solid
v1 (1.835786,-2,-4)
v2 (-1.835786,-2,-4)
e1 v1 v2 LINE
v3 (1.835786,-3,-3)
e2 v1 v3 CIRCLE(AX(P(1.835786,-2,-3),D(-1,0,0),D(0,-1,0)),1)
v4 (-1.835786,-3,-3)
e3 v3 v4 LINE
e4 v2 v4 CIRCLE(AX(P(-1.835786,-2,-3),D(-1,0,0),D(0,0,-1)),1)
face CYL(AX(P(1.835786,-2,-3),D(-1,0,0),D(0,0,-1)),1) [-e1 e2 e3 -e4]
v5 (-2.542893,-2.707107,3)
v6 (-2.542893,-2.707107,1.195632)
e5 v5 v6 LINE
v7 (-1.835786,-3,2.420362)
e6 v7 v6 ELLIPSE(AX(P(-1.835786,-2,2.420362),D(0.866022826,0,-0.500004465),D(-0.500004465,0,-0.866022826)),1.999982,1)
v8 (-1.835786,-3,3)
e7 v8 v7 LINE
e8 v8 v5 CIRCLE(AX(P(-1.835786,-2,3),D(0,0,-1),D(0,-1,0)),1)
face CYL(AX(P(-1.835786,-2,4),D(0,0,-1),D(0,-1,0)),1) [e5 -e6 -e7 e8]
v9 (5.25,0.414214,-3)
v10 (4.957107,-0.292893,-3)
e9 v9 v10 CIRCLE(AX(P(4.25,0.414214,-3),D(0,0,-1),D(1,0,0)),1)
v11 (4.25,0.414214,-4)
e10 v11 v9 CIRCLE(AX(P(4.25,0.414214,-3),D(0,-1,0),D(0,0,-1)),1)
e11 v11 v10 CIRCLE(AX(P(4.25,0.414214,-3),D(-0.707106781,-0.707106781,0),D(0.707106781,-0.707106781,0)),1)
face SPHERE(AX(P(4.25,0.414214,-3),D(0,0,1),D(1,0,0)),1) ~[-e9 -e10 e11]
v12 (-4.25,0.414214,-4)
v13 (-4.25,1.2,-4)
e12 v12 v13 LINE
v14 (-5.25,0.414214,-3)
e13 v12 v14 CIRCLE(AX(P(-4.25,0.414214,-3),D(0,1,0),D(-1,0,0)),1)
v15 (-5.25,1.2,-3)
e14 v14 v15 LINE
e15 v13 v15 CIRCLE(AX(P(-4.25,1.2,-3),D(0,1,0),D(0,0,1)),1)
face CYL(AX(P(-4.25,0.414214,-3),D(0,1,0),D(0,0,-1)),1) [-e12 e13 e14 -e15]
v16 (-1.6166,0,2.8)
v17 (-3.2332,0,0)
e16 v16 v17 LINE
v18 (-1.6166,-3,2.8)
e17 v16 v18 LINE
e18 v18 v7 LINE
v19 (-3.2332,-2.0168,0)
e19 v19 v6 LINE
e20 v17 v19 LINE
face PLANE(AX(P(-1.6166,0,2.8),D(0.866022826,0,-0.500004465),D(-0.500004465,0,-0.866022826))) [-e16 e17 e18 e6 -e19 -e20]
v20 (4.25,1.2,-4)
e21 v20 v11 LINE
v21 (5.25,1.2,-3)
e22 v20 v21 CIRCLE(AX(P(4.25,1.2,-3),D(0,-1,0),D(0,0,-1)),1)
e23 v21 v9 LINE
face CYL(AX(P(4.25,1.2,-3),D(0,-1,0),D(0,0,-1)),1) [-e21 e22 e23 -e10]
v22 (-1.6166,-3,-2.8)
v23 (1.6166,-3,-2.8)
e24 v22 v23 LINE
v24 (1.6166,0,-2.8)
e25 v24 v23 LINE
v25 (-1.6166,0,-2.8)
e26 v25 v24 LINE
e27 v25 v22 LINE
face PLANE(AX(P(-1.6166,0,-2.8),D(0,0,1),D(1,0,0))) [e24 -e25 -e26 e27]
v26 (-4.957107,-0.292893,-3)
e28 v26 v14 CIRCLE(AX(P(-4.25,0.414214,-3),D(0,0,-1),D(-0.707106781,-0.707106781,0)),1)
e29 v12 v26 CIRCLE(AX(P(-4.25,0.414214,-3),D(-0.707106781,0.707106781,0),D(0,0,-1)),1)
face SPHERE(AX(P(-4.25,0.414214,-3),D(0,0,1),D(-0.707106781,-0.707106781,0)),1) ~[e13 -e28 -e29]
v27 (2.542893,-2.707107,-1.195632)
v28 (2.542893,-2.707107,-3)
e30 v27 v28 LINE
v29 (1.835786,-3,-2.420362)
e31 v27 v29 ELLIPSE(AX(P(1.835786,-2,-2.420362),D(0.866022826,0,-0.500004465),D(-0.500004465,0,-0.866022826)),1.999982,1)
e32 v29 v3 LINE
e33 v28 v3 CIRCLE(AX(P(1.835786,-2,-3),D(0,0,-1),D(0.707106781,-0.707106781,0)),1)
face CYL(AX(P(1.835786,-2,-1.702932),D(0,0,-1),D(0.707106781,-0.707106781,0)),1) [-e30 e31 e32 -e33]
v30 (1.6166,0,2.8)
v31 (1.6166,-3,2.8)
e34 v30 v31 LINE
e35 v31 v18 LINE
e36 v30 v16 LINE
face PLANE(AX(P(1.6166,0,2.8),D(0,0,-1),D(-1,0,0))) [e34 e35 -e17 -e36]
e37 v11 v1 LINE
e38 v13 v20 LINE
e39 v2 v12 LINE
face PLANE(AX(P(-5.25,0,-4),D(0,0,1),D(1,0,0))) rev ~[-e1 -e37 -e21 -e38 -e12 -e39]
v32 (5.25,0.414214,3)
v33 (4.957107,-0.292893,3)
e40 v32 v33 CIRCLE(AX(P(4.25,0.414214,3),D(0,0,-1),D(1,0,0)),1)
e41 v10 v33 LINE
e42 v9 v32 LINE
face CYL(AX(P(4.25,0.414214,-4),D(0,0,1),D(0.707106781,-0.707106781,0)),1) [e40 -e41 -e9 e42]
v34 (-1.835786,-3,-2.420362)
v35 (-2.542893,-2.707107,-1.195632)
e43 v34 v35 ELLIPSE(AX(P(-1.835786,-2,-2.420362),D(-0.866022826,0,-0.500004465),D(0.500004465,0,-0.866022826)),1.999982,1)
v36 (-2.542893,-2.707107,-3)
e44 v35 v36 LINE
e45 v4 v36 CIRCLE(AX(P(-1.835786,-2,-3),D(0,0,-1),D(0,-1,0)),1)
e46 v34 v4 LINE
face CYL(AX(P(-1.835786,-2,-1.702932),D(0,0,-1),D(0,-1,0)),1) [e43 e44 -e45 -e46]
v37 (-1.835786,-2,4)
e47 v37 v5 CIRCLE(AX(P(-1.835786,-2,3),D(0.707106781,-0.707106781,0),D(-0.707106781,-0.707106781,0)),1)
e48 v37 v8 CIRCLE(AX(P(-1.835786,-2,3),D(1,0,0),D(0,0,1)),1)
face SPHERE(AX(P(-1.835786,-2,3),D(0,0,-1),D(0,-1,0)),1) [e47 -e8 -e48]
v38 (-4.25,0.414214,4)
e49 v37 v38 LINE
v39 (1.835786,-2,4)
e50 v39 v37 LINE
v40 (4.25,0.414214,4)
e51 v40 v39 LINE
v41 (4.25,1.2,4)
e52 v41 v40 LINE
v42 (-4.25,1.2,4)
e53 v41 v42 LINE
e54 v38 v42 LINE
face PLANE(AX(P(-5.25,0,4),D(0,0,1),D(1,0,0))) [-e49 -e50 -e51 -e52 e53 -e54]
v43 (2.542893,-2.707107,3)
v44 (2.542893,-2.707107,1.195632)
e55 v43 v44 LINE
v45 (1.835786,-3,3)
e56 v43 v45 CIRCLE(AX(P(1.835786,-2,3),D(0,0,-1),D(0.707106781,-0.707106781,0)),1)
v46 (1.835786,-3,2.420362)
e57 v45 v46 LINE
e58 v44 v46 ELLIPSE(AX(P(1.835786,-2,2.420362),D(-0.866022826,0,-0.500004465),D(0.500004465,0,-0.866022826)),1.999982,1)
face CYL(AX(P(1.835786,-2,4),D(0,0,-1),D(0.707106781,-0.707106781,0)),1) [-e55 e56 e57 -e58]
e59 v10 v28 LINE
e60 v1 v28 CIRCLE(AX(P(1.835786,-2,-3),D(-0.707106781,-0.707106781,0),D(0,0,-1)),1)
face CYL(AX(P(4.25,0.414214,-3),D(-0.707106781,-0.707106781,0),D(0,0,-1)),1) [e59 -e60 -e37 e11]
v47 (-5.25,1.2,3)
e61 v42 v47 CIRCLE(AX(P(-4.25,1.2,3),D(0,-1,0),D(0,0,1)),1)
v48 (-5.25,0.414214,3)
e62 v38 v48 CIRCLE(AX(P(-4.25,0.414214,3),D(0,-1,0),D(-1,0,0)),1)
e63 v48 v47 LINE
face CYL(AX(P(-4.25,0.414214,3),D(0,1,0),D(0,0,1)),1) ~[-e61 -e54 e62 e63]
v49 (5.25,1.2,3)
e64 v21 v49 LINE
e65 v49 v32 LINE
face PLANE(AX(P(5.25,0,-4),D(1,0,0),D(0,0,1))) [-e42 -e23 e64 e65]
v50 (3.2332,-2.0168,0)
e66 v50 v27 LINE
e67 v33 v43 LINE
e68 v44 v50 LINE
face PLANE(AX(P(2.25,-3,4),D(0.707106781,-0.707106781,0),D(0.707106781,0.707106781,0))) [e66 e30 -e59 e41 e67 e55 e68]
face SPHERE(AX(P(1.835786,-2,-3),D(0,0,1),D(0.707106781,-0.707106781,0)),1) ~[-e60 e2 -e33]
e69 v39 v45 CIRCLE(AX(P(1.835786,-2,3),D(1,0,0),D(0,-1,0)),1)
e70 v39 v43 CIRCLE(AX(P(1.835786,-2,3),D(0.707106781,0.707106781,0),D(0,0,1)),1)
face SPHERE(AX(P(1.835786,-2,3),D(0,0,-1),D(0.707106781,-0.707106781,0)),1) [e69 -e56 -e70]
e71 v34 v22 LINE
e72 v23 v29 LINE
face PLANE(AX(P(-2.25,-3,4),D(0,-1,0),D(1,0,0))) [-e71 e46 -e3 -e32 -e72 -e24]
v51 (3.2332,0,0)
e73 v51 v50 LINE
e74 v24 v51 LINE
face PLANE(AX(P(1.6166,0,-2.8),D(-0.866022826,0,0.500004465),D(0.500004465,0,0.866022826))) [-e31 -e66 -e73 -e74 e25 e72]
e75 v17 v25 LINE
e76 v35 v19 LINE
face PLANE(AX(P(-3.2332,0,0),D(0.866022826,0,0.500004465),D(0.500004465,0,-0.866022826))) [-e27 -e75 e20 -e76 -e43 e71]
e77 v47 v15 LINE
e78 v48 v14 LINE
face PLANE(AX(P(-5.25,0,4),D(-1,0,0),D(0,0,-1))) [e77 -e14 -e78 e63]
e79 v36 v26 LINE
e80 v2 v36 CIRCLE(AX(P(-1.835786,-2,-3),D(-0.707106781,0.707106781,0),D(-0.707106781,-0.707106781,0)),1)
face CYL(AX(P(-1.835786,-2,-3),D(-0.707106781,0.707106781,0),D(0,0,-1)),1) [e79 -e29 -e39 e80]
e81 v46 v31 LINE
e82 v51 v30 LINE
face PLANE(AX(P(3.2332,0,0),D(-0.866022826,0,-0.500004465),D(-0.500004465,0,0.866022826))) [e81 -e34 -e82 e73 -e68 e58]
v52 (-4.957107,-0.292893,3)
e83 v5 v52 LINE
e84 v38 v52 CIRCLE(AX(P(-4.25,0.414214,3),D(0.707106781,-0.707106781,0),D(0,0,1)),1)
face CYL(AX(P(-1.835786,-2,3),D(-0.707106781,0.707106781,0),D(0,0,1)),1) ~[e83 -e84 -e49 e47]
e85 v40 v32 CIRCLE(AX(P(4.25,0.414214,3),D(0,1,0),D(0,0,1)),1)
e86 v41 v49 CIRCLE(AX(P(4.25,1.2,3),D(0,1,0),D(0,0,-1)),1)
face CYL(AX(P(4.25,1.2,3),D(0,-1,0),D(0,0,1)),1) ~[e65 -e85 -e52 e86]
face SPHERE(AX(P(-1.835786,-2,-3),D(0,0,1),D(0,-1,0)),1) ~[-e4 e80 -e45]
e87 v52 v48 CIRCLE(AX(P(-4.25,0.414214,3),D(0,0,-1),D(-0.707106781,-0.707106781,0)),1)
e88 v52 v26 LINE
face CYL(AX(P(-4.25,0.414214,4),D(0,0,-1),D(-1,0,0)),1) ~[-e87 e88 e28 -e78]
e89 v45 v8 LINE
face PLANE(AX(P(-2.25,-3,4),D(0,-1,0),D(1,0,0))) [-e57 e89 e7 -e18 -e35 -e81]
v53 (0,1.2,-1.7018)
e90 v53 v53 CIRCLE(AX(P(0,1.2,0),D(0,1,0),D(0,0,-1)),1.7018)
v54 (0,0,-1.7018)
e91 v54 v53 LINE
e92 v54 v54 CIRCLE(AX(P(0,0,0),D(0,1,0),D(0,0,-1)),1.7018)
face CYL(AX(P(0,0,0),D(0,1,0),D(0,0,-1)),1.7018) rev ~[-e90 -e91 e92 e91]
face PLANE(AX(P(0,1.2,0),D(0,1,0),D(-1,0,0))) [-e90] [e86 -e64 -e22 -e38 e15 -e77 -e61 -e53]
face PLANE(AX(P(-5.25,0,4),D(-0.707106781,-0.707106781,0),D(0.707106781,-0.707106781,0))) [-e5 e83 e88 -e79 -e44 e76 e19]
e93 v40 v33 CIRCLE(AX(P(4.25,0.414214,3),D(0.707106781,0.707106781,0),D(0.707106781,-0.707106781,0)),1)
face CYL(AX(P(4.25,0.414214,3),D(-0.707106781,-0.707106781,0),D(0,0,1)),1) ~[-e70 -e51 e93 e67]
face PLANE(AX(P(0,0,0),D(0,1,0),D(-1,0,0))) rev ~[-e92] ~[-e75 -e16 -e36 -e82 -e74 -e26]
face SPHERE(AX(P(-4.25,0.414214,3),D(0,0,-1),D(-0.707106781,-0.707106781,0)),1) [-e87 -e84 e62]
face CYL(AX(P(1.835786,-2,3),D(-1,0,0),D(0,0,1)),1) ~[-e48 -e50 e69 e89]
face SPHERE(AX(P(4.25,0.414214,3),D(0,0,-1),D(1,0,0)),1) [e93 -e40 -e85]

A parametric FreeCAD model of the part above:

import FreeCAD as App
import Part
import Sketcher
Q = App.Units.Quantity


def edges_at(feature, points):
    """Names of the edges that pass closest to the given points."""
    edges = feature.Shape.Edges
    near = lambda p: min(range(len(edges)), key=lambda i: edges[i].distToShape(Part.Vertex(*p))[0])
    return sorted({f"Edge{near(p) + 1}" for p in points})


def add_polygon(sketch, points):
    """Adds a closed chain of lines whose ends are joined by coincident constraints."""
    first, n = sketch.GeometryCount, len(points)
    for a, b in zip(points, points[1:] + points[:1]):
        sketch.addGeometry(Part.LineSegment(App.Vector(*a, 0), App.Vector(*b, 0)), False)
    for i in range(n):
        sketch.addConstraint(Sketcher.Constraint("Coincident", first + i, 2, first + (i + 1) % n, 1))

doc = App.newDocument("Part")
params = doc.addObject("Spreadsheet::Sheet", "Params")
for row, (alias, value) in enumerate([
    ("sketch1_height", "8 mm"),
    ("sketch1_width", "10.5 mm"),
    ("pad1_length", "1.2 mm"),
    ("sketch2_width", "10.5 mm"),
    ("pad2_length", "8 mm"),
    ("pocket1_length", "3 mm"),
    ("fillet_radius", "1 mm"),
    ("fillet2_radius", "1 mm"),
    ("hole_diameter", "3.4036 mm"),
], start=1):
    params.set(f"A{row}", alias)
    params.set(f"B{row}", "=" + value)
    params.setAlias(f"B{row}", alias)

body = doc.addObject("PartDesign::Body", "Body")

sketch1 = body.newObject("Sketcher::SketchObject", "Sketch")
sketch1.AttachmentSupport = (doc.getObject("XZ_Plane"), [""])
sketch1.MapMode = "FlatFace"
add_polygon(sketch1, [(5, -4), (-5, -4), (-5, 4), (5, 4)])
sketch1.addConstraint([
    Sketcher.Constraint("Horizontal", 0),
    Sketcher.Constraint("Vertical", 1),
    Sketcher.Constraint("Horizontal", 2),
    Sketcher.Constraint("Vertical", 3),
    Sketcher.Constraint("Symmetric", 0, 2, 2, 2, -1, 1),
    Sketcher.Constraint("DistanceY", 1, 1, 1, 2, Q("8 mm")),
    Sketcher.Constraint("DistanceX", 0, 2, 0, 1, Q("10.5 mm")),
])
sketch1.setExpression("Constraints[9]", "Params.sketch1_height")
sketch1.setExpression("Constraints[10]", "Params.sketch1_width")
pad1 = body.newObject("PartDesign::Pad", "Pad")
pad1.Profile = sketch1
pad1.setExpression("Length", "Params.pad1_length")
pad1.Reversed = True

sketch2 = body.newObject("Sketcher::SketchObject", "Sketch001")
sketch2.AttachmentSupport = (doc.getObject("XY_Plane"), [""])
sketch2.MapMode = "FlatFace"
sketch2.AttachmentOffset = App.Placement(App.Vector(0, 0, 4), App.Rotation())
add_polygon(sketch2, [(5.2, 0), (-5.2, 0), (-2.2, -3), (2.2, -3)])
sketch2.addConstraint([
    Sketcher.Constraint("Horizontal", 0),
    Sketcher.Constraint("Horizontal", 2),
    Sketcher.Constraint("Symmetric", 0, 2, 3, 2, -1, 1),
    Sketcher.Constraint("Perpendicular", 1, 3),
    Sketcher.Constraint("Equal", 1, 3),
    Sketcher.Constraint("DistanceY", 1, 2, -1, 1, Q("3 mm")),
    Sketcher.Constraint("DistanceX", 0, 2, 0, 1, Q("10.5 mm")),
])
sketch2.setExpression("Constraints[10]", "Params.sketch2_width")
pad2 = body.newObject("PartDesign::Pad", "Pad001")
pad2.Profile = sketch2
pad2.setExpression("Length", "Params.pad2_length")
pad2.Reversed = True

sketch3 = body.newObject("Sketcher::SketchObject", "Sketch002")
sketch3.AttachmentSupport = (doc.getObject("XZ_Plane"), [""])
sketch3.MapMode = "FlatFace"
add_polygon(sketch3, [(-3.2, 0), (-1.6, 2.8), (1.6, 2.8), (3.2, 0), (1.6, -2.8), (-1.6, -2.8)])
sketch3.addConstraint([
    Sketcher.Constraint("Horizontal", 1),
    Sketcher.Constraint("Horizontal", 4),
    Sketcher.Constraint("Symmetric", 0, 2, 3, 2, -1, 1),
    Sketcher.Constraint("Symmetric", 2, 2, 5, 2, -1, 1),
    Sketcher.Constraint("PointOnObject", 2, 2, -1),
    Sketcher.Constraint("Parallel", 2, 5),
    Sketcher.Constraint("Vertical", 1, 2, 3, 2),
    Sketcher.Constraint("DistanceY", 3, 2, 1, 2, Q("5.6 mm")),
    Sketcher.Constraint("Angle", 0, Q("59.9997 deg")),
    Sketcher.Constraint("DistanceX", 1, 1, 1, 2, Q("3.2332 mm")),
])
pocket1 = body.newObject("PartDesign::Pocket", "Pocket")
pocket1.Profile = sketch3
pocket1.setExpression("Length", "Params.pocket1_length")
pocket1.Reversed = True
doc.recompute()

fillet = body.newObject("PartDesign::Fillet", "Fillet")
fillet.Base = (pocket1, edges_at(pocket1, [
    (5.25, 0, 0),
    (-5.25, 0, 0),
    (-2.25, -3, 2.851),
    (2.25, -3, 2.851),
    (2.25, -3, -2.851),
    (-2.25, -3, -2.851),
]))
fillet.setExpression("Radius", "Params.fillet_radius")
doc.recompute()

fillet2 = body.newObject("PartDesign::Fillet", "Fillet001")
fillet2.Base = (fillet, edges_at(fillet, [
    (2.219, -2.924, 4),
    (3.75, -1.5, 4),
    (5.174, 0.032, 4),
    (5.25, 0.807, 4),
    (-2.219, -2.924, 4),
    (-3.75, -1.5, 4),
    (-5.174, 0.032, 4),
    (-5.25, 0.807, 4),
    (0, -3, 4),
    (2.219, -2.924, -4),
    (3.75, -1.5, -4),
    (5.174, 0.032, -4),
    (5.25, 0.807, -4),
    (-2.219, -2.924, -4),
    (-3.75, -1.5, -4),
    (-5.174, 0.032, -4),
    (-5.25, 0.807, -4),
    (0, -3, -4),
]))
fillet2.setExpression("Radius", "Params.fillet2_radius")

sketch4 = body.newObject("Sketcher::SketchObject", "Sketch003")
sketch4.AttachmentSupport = (doc.getObject("XZ_Plane"), [""])
sketch4.MapMode = "FlatFace"
sketch4.addGeometry(Part.Circle(App.Vector(0, 0, 0), App.Vector(0, 0, 1), 1.7), False)
sketch4.addConstraint([
    Sketcher.Constraint("Coincident", 0, 3, -1, 1),
    Sketcher.Constraint("Diameter", 0, Q("3.4036 mm")),
])
doc.recompute()
hole = body.newObject("PartDesign::Hole", "Hole")
hole.Profile = sketch4
hole.ThreadType = "None"
hole.setExpression("Diameter", "Params.hole_diameter")
hole.DepthType = "ThroughAll"

doc.recompute()
